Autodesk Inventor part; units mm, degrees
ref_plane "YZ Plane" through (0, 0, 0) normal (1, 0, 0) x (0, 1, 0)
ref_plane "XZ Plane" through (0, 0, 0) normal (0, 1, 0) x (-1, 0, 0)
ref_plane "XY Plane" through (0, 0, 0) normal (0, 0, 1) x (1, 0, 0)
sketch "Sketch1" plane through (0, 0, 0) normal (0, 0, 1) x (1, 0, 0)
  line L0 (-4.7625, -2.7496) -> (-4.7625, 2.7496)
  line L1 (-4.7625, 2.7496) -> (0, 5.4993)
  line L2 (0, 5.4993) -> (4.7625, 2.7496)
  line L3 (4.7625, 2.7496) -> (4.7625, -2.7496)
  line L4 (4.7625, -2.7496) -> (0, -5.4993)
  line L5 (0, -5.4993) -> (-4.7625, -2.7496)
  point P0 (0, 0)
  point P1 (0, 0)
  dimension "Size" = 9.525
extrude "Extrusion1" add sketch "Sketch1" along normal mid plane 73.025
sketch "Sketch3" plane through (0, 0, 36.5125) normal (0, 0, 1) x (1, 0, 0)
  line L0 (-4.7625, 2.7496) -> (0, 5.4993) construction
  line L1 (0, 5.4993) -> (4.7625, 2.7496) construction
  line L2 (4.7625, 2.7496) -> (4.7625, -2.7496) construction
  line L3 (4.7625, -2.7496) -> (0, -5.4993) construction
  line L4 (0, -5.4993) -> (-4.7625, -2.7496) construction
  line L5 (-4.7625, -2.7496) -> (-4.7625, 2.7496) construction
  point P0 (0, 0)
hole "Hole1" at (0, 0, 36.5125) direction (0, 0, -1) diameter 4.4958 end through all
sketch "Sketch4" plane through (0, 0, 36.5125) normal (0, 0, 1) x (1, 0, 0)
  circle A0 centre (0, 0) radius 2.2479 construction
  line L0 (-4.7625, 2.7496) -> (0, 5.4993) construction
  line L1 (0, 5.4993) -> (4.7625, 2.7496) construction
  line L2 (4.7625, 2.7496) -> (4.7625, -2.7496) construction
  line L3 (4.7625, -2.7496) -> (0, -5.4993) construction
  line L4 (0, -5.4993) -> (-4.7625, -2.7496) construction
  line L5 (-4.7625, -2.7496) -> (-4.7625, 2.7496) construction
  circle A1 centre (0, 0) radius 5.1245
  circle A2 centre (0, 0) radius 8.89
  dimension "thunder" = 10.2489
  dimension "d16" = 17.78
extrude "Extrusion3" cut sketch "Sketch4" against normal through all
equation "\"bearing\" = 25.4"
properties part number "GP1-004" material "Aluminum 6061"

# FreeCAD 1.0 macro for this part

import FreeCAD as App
import Part
import Sketcher
Q = App.Units.Quantity


def add_polygon(sketch, points):
    """Adds a closed chain of lines whose ends are joined by coincident constraints."""
    first, n = sketch.GeometryCount, len(points)
    for a, b in zip(points, points[1:] + points[:1]):
        sketch.addGeometry(Part.LineSegment(App.Vector(*a, 0), App.Vector(*b, 0)), False)
    for i in range(n):
        sketch.addConstraint(Sketcher.Constraint("Coincident", first + i, 2, first + (i + 1) % n, 1))

doc = App.newDocument("Part")
body = doc.addObject("PartDesign::Body", "Body")

sketch1 = doc.addObject("Sketcher::SketchObject", "Sketch")
body.addObject(sketch1)
sketch1.AttachmentSupport = (doc.XY_Plane, [""])
sketch1.MapMode = "FlatFace"
add_polygon(sketch1, [(-5, 3), (-5, -3), (0, -5), (5, -3), (5, 3), (0, 5)])
sketch1.addConstraint(Sketcher.Constraint("Vertical", 0))
sketch1.addConstraint(Sketcher.Constraint("Vertical", 3))
sketch1.addConstraint(Sketcher.Constraint("Symmetric", 0, 2, 3, 2, -1, 1))
sketch1.addConstraint(Sketcher.Constraint("Symmetric", 1, 2, 4, 2, -1, 1))
sketch1.addConstraint(Sketcher.Constraint("PointOnObject", 1, 2, -2))
sketch1.addConstraint(Sketcher.Constraint("Parallel", 2, 5))
sketch1.addConstraint(Sketcher.Constraint("Horizontal", 0, 2, 2, 2))
sketch1.addConstraint(Sketcher.Constraint("Angle", 1, Q("-30.0006 deg")))
sketch1.addConstraint(Sketcher.Constraint("DistanceX", 0, 2, 2, 2, Q("0.375 in")))
sketch1.addConstraint(Sketcher.Constraint("DistanceY", 0, 2, 0, 1, Q("0.2165 in")))
pad1 = doc.addObject("PartDesign::Pad", "Pad")
body.addObject(pad1)
pad1.Profile = sketch1
pad1.Length = Q("2.875 in")
pad1.Midplane = True

sketch2 = doc.addObject("Sketcher::SketchObject", "Sketch001")
body.addObject(sketch2)
sketch2.AttachmentSupport = (doc.XY_Plane, [""])
sketch2.MapMode = "FlatFace"
sketch2.AttachmentOffset = App.Placement(App.Vector(0, 0, 1.4375 * 25.4), App.Rotation())
sketch2.addGeometry(Part.Circle(App.Vector(0, 0, 0), App.Vector(0, 0, 1), 2.2), False)
sketch2.addConstraint(Sketcher.Constraint("Coincident", 0, 3, -1, 1))
sketch2.addConstraint(Sketcher.Constraint("Diameter", 0, Q("0.177 in")))
doc.recompute()
hole = doc.addObject("PartDesign::Hole", "Hole")
body.addObject(hole)
hole.Profile = sketch2
hole.ThreadType = "None"
hole.Diameter = Q("0.177 in")
hole.DepthType = "ThroughAll"

sketch3 = doc.addObject("Sketcher::SketchObject", "Sketch002")
body.addObject(sketch3)
sketch3.AttachmentSupport = (doc.XY_Plane, [""])
sketch3.MapMode = "FlatFace"
sketch3.AttachmentOffset = App.Placement(App.Vector(0, 0, 1.4375 * 25.4), App.Rotation())
sketch3.addGeometry(Part.Circle(App.Vector(0, 0, 0), App.Vector(0, 0, 1), 9), False)
sketch3.addGeometry(Part.Circle(App.Vector(0, 0, 0), App.Vector(0, 0, 1), 5), False)
sketch3.addConstraint(Sketcher.Constraint("Coincident", 0, 3, -1, 1))
sketch3.addConstraint(Sketcher.Constraint("Coincident", 1, 3, -1, 1))
sketch3.addConstraint(Sketcher.Constraint("Diameter", 0, Q("0.7 in")))
sketch3.addConstraint(Sketcher.Constraint("Diameter", 1, Q("0.4035 in")))
pocket1 = doc.addObject("PartDesign::Pocket", "Pocket")
body.addObject(pocket1)
pocket1.Profile = sketch3
pocket1.Type = "ThroughAll"

doc.recompute()
